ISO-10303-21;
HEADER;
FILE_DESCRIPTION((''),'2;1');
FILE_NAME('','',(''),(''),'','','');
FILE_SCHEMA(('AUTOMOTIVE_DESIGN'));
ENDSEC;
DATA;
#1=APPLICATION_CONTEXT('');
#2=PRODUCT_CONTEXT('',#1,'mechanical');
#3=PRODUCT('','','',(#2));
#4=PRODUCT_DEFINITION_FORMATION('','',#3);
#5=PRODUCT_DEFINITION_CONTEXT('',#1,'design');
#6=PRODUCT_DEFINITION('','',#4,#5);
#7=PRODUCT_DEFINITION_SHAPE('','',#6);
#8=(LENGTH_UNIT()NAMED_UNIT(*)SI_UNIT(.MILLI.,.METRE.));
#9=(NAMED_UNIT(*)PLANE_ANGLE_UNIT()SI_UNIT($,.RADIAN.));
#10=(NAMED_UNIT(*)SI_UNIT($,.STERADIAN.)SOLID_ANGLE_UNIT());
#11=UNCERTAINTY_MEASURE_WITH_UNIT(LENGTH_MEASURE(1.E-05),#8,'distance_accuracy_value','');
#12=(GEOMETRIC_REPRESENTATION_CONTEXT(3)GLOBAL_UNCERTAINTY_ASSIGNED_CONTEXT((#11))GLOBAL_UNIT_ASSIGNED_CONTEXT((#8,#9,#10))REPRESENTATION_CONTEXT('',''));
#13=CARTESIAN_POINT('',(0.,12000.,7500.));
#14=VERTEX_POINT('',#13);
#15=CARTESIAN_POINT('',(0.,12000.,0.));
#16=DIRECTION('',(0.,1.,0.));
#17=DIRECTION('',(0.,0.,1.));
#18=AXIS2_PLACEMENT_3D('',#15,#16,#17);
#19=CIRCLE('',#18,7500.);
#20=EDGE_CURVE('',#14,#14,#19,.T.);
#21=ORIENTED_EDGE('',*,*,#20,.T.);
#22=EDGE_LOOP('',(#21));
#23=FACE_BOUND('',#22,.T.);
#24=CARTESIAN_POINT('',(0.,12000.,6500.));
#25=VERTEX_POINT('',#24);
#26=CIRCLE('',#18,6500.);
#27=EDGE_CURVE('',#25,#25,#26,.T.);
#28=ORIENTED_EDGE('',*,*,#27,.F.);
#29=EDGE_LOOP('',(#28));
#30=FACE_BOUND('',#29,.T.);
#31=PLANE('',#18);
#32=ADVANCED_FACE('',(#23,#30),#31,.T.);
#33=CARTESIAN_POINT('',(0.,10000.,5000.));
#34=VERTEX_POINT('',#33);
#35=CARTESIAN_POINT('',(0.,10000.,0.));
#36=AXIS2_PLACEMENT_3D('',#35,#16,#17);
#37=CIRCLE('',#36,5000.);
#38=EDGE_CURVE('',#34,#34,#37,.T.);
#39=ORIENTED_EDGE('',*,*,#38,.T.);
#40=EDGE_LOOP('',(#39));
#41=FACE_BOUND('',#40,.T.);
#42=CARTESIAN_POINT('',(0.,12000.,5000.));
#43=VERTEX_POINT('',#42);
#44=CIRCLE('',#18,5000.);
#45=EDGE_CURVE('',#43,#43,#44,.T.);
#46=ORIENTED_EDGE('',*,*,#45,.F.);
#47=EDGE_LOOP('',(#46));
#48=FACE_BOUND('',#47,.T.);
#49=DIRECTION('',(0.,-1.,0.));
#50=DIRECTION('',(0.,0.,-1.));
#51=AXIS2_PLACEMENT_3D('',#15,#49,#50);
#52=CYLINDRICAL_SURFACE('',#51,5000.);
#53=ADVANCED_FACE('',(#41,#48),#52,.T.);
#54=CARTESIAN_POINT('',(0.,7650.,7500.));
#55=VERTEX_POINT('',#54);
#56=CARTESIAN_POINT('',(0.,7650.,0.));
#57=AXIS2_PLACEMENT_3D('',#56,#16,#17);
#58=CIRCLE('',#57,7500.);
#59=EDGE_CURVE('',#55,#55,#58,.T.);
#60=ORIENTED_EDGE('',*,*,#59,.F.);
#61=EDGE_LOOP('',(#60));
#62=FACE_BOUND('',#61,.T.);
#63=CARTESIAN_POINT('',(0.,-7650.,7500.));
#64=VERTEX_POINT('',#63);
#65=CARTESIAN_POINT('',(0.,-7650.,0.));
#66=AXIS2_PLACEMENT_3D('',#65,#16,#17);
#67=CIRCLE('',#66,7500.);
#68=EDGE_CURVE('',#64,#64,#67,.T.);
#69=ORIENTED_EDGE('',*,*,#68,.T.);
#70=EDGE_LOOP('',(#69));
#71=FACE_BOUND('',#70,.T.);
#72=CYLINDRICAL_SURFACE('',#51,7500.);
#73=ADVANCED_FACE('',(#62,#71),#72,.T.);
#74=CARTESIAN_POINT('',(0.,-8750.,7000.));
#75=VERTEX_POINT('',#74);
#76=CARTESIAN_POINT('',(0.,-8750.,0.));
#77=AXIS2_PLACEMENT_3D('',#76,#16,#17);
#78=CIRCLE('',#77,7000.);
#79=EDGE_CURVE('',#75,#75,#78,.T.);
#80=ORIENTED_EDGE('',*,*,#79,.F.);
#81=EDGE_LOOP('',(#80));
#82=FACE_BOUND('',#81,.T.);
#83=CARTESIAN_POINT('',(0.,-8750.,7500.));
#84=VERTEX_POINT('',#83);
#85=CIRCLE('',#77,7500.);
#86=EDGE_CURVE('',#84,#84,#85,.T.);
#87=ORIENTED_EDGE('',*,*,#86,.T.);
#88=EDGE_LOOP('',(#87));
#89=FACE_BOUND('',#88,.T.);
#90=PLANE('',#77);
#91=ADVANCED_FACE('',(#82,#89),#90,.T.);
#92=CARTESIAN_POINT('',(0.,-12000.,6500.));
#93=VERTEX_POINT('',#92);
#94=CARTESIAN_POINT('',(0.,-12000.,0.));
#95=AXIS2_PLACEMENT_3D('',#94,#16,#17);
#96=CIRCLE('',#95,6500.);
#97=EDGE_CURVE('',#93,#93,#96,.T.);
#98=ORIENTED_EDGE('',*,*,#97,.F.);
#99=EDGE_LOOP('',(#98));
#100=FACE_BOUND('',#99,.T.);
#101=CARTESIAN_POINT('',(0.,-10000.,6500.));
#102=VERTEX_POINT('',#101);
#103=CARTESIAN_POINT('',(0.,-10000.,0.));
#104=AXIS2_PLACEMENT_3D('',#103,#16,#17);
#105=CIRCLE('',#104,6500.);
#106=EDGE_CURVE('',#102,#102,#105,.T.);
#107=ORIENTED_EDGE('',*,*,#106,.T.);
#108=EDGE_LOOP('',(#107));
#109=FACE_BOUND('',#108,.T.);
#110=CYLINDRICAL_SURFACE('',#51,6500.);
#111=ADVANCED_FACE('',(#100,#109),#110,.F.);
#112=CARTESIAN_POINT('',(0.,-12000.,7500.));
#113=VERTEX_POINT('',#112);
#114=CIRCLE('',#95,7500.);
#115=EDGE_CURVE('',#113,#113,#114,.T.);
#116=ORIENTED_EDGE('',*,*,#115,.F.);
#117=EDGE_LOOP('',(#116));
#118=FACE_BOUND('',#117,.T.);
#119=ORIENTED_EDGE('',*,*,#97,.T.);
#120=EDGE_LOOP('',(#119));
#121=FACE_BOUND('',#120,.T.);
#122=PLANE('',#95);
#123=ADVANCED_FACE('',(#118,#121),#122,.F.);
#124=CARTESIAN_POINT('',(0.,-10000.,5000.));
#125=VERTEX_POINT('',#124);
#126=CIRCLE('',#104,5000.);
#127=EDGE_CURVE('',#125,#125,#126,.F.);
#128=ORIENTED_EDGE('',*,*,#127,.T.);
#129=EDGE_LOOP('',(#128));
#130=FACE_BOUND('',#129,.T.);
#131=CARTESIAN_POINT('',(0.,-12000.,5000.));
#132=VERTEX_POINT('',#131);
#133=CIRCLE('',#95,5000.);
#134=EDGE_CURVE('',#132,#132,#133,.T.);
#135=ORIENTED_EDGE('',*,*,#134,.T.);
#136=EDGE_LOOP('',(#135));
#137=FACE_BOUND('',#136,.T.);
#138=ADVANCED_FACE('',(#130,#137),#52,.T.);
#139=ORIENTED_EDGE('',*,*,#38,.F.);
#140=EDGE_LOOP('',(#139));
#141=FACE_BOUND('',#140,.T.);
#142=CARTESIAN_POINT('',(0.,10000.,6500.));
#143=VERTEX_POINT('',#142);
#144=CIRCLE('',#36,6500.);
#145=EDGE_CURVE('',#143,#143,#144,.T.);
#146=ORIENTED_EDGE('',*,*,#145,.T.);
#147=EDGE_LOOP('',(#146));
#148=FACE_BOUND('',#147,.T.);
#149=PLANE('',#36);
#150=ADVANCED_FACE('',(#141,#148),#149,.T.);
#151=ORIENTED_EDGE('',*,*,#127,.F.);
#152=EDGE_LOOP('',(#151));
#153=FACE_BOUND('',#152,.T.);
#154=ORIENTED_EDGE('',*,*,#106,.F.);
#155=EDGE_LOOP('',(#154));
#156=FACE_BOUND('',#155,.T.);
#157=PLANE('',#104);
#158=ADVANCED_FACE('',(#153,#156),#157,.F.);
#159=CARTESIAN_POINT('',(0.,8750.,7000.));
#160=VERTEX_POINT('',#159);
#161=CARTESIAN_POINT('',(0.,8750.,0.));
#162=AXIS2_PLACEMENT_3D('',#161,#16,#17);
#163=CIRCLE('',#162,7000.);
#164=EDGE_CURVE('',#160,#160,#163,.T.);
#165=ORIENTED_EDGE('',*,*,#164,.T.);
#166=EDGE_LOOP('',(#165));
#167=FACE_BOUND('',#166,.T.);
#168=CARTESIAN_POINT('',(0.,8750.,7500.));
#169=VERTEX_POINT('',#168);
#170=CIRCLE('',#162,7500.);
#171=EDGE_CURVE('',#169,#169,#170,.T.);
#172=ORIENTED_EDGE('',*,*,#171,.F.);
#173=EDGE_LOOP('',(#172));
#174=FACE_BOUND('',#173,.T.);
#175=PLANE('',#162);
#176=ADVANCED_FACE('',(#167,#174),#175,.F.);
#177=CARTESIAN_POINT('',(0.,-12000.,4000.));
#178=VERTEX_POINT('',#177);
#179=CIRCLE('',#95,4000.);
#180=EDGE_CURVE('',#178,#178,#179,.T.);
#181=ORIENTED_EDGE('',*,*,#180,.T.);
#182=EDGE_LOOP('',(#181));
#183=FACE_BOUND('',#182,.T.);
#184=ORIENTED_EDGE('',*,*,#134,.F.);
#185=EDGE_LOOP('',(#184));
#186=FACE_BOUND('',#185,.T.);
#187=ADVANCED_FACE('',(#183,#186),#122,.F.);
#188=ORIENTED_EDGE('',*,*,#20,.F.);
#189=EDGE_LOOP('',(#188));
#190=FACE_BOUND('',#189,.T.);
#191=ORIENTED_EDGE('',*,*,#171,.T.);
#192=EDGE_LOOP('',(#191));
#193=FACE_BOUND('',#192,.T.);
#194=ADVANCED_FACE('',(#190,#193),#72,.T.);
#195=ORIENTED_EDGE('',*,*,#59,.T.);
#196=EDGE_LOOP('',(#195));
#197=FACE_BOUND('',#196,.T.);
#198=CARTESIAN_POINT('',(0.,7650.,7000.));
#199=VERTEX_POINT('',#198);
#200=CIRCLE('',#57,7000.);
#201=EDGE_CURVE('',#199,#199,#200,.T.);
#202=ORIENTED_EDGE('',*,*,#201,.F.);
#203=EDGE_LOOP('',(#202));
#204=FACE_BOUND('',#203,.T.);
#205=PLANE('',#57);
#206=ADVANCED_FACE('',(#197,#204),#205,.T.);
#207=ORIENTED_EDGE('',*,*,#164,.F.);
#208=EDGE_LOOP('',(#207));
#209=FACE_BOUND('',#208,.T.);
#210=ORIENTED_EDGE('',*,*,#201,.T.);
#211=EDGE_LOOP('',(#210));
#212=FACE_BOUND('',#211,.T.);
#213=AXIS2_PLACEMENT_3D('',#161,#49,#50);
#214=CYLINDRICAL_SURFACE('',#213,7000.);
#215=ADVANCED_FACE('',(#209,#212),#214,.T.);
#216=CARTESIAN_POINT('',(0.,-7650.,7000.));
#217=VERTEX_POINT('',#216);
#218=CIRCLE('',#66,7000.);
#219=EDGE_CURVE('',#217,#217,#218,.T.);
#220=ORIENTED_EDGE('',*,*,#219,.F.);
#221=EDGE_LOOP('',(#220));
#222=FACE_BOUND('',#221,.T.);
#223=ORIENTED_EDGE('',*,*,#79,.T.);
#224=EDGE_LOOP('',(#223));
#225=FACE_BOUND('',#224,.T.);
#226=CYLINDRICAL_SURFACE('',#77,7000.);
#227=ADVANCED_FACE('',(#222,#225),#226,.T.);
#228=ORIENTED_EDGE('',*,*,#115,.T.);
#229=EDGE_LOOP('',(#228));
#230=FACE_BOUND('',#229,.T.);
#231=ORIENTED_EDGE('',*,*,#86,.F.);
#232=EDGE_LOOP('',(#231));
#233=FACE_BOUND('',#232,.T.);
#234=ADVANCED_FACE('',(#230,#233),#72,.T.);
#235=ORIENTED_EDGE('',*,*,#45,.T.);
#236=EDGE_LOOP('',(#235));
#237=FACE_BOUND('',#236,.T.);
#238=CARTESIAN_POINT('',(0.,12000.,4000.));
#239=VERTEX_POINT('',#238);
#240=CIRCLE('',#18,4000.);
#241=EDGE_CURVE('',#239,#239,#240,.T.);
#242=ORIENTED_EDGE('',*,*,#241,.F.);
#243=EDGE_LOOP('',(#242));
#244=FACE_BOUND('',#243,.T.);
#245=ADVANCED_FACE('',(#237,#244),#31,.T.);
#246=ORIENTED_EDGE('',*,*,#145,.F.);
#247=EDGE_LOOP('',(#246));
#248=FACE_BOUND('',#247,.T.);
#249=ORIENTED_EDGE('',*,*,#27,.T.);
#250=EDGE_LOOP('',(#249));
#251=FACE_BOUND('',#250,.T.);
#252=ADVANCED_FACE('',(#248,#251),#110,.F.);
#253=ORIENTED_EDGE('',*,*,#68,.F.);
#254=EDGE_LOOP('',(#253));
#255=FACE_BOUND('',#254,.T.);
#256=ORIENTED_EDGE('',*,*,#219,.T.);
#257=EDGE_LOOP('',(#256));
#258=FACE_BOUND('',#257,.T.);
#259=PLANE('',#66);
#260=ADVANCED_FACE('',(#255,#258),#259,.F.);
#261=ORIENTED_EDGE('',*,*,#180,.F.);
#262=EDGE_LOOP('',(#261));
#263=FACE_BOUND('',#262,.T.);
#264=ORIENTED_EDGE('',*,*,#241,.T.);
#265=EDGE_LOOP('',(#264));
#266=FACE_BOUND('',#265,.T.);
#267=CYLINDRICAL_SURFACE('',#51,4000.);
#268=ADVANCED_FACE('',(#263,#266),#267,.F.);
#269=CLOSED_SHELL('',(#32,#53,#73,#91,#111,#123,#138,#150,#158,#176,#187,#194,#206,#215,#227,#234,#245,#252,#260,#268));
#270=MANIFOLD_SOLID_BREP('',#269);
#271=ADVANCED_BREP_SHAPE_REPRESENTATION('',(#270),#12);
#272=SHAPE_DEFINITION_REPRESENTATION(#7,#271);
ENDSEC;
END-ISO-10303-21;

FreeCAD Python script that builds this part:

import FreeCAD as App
import Part
import Sketcher
Q = App.Units.Quantity

doc = App.newDocument("Part")
body = doc.addObject("PartDesign::Body", "Body")

# Sketch on XZ plane
sketch1 = body.newObject("Sketcher::SketchObject", "Sketch")
sketch1.AttachmentSupport = (doc.getObject("XZ_Plane"), [""])
sketch1.MapMode = "FlatFace"
sketch1.addGeometry([
    Part.Circle(App.Vector(0, 0, 0), App.Vector(0, 0, 1), 7500),
    Part.Circle(App.Vector(0, 0, 0), App.Vector(0, 0, 1), 6500),
], False)
sketch1.addConstraint([
    Sketcher.Constraint("Coincident", 0, 3, -1, 1),
    Sketcher.Constraint("Coincident", 1, 3, -1, 1),
    Sketcher.Constraint("Diameter", 0, Q("15000 mm")),
    Sketcher.Constraint("Diameter", 1, Q("13000 mm")),
])
pad1 = body.newObject("PartDesign::Pad", "Pad")
pad1.Profile = sketch1
pad1.Length = 24000
pad1.Midplane = True
body2 = doc.addObject("PartDesign::Body", "Body001")

# Sketch on XZ plane
sketch2 = body2.newObject("Sketcher::SketchObject", "Sketch001")
sketch2.AttachmentSupport = (doc.getObject("XZ_Plane001"), [""])
sketch2.MapMode = "FlatFace"
sketch2.addGeometry([
    Part.Circle(App.Vector(0, 0, 0), App.Vector(0, 0, 1), 5000),
    Part.Circle(App.Vector(0, 0, 0), App.Vector(0, 0, 1), 4000),
], False)
sketch2.addConstraint([
    Sketcher.Constraint("Coincident", 0, 3, -1, 1),
    Sketcher.Constraint("Coincident", 1, 3, -1, 1),
    Sketcher.Constraint("Diameter", 0, Q("10000 mm")),
    Sketcher.Constraint("Diameter", 1, Q("8000 mm")),
])
pad2 = body2.newObject("PartDesign::Pad", "Pad001")
pad2.Profile = sketch2
pad2.Length = 24000
pad2.Midplane = True
body.AllowCompound = True
doc.recompute()

boolean = body.newObject("PartDesign::Boolean", "Boolean")
boolean.Type = "Fuse"
boolean.addObjects([body2])

# Sketch on XZ plane
sketch3 = body.newObject("Sketcher::SketchObject", "Sketch002")
sketch3.AttachmentSupport = (doc.getObject("XZ_Plane"), [""])
sketch3.MapMode = "FlatFace"
sketch3.addGeometry([
    Part.Circle(App.Vector(0, 0, 0), App.Vector(0, 0, 1), 6500),
    Part.Circle(App.Vector(0, 0, 0), App.Vector(0, 0, 1), 5000),
], False)
sketch3.addConstraint([
    Sketcher.Constraint("Coincident", 0, 3, -1, 1),
    Sketcher.Constraint("Coincident", 1, 3, -1, 1),
    Sketcher.Constraint("Diameter", 0, Q("13000 mm")),
    Sketcher.Constraint("Diameter", 1, Q("10000 mm")),
])
pad3 = body.newObject("PartDesign::Pad", "Pad002")
pad3.Profile = sketch3
pad3.Length = 20000
pad3.Midplane = True

# Sketch on XZ plane
sketch4 = body.newObject("Sketcher::SketchObject", "Sketch003")
sketch4.AttachmentSupport = (doc.getObject("XZ_Plane"), [""])
sketch4.MapMode = "FlatFace"
sketch4.AttachmentOffset = App.Placement(App.Vector(0, 0, -8750), App.Rotation())
sketch4.addGeometry([
    Part.Circle(App.Vector(0, 0, 0), App.Vector(0, 0, 1), 7500),
    Part.Circle(App.Vector(0, 0, 0), App.Vector(0, 0, 1), 7000),
], False)
sketch4.addConstraint([
    Sketcher.Constraint("Coincident", 0, 3, -1, 1),
    Sketcher.Constraint("Coincident", 1, 3, -1, 1),
    Sketcher.Constraint("Diameter", 0, Q("15000 mm")),
    Sketcher.Constraint("Diameter", 1, Q("14000 mm")),
])
pocket1 = body.newObject("PartDesign::Pocket", "Pocket")
pocket1.Profile = sketch4
pocket1.Length = 1100
pocket1.Reversed = True

# Sketch on XZ plane
sketch5 = body.newObject("Sketcher::SketchObject", "Sketch004")
sketch5.AttachmentSupport = (doc.getObject("XZ_Plane"), [""])
sketch5.MapMode = "FlatFace"
sketch5.AttachmentOffset = App.Placement(App.Vector(0, 0, 7650), App.Rotation())
sketch5.addGeometry([
    Part.Circle(App.Vector(0, 0, 0), App.Vector(0, 0, 1), 7500),
    Part.Circle(App.Vector(0, 0, 0), App.Vector(0, 0, 1), 7000),
], False)
sketch5.addConstraint([
    Sketcher.Constraint("Coincident", 0, 3, -1, 1),
    Sketcher.Constraint("Coincident", 1, 3, -1, 1),
    Sketcher.Constraint("Diameter", 0, Q("15000 mm")),
    Sketcher.Constraint("Diameter", 1, Q("14000 mm")),
])
pocket2 = body.newObject("PartDesign::Pocket", "Pocket001")
pocket2.Profile = sketch5
pocket2.Length = 1100
pocket2.Reversed = True

doc.recompute()
